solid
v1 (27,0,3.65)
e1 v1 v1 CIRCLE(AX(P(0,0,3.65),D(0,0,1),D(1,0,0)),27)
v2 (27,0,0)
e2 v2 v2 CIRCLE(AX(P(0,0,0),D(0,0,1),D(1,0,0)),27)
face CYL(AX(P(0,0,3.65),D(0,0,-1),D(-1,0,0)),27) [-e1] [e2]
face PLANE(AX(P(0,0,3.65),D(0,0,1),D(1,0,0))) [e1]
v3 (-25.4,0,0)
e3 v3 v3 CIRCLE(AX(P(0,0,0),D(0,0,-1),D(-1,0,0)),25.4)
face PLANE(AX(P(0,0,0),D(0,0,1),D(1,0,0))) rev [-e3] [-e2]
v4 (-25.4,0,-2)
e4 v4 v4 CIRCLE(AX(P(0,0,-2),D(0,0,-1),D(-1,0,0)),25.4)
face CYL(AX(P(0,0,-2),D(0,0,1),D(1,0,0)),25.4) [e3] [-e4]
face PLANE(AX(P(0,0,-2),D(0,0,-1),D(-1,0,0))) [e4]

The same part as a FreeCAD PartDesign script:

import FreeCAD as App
import Part
import Sketcher

V = App.Vector
Q = App.Units.Quantity

doc = App.newDocument("Part")
body = doc.addObject("PartDesign::Body", "Body")

# Sketch on XY plane
sketch1 = body.newObject("Sketcher::SketchObject", "Sketch")
sketch1.AttachmentSupport = (doc.getObject("XY_Plane"), [""])
sketch1.MapMode = "FlatFace"
sketch1.addGeometry(Part.Circle(V(0, 0, 0), V(0, 0, 1), 27), False)
sketch1.addConstraint([
    Sketcher.Constraint("Coincident", 0, 3, -1, 1),
    Sketcher.Constraint("Diameter", 0, Q("54 mm")),
])
pad1 = body.newObject("PartDesign::Pad", "Pad")
pad1.Profile = sketch1
pad1.Length = 3.65

# Sketch on XY plane
sketch2 = body.newObject("Sketcher::SketchObject", "Sketch001")
sketch2.AttachmentSupport = (doc.getObject("XY_Plane"), [""])
sketch2.MapMode = "FlatFace"
sketch2.addGeometry(Part.Circle(V(0, 0, 0), V(0, 0, 1), 25.4), False)
sketch2.addConstraint([
    Sketcher.Constraint("Coincident", 0, 3, -1, 1),
    Sketcher.Constraint("Diameter", 0, Q("50.8 mm")),
])
pad2 = body.newObject("PartDesign::Pad", "Pad001")
pad2.Profile = sketch2
pad2.Length = 2
pad2.Reversed = True

doc.recompute()
